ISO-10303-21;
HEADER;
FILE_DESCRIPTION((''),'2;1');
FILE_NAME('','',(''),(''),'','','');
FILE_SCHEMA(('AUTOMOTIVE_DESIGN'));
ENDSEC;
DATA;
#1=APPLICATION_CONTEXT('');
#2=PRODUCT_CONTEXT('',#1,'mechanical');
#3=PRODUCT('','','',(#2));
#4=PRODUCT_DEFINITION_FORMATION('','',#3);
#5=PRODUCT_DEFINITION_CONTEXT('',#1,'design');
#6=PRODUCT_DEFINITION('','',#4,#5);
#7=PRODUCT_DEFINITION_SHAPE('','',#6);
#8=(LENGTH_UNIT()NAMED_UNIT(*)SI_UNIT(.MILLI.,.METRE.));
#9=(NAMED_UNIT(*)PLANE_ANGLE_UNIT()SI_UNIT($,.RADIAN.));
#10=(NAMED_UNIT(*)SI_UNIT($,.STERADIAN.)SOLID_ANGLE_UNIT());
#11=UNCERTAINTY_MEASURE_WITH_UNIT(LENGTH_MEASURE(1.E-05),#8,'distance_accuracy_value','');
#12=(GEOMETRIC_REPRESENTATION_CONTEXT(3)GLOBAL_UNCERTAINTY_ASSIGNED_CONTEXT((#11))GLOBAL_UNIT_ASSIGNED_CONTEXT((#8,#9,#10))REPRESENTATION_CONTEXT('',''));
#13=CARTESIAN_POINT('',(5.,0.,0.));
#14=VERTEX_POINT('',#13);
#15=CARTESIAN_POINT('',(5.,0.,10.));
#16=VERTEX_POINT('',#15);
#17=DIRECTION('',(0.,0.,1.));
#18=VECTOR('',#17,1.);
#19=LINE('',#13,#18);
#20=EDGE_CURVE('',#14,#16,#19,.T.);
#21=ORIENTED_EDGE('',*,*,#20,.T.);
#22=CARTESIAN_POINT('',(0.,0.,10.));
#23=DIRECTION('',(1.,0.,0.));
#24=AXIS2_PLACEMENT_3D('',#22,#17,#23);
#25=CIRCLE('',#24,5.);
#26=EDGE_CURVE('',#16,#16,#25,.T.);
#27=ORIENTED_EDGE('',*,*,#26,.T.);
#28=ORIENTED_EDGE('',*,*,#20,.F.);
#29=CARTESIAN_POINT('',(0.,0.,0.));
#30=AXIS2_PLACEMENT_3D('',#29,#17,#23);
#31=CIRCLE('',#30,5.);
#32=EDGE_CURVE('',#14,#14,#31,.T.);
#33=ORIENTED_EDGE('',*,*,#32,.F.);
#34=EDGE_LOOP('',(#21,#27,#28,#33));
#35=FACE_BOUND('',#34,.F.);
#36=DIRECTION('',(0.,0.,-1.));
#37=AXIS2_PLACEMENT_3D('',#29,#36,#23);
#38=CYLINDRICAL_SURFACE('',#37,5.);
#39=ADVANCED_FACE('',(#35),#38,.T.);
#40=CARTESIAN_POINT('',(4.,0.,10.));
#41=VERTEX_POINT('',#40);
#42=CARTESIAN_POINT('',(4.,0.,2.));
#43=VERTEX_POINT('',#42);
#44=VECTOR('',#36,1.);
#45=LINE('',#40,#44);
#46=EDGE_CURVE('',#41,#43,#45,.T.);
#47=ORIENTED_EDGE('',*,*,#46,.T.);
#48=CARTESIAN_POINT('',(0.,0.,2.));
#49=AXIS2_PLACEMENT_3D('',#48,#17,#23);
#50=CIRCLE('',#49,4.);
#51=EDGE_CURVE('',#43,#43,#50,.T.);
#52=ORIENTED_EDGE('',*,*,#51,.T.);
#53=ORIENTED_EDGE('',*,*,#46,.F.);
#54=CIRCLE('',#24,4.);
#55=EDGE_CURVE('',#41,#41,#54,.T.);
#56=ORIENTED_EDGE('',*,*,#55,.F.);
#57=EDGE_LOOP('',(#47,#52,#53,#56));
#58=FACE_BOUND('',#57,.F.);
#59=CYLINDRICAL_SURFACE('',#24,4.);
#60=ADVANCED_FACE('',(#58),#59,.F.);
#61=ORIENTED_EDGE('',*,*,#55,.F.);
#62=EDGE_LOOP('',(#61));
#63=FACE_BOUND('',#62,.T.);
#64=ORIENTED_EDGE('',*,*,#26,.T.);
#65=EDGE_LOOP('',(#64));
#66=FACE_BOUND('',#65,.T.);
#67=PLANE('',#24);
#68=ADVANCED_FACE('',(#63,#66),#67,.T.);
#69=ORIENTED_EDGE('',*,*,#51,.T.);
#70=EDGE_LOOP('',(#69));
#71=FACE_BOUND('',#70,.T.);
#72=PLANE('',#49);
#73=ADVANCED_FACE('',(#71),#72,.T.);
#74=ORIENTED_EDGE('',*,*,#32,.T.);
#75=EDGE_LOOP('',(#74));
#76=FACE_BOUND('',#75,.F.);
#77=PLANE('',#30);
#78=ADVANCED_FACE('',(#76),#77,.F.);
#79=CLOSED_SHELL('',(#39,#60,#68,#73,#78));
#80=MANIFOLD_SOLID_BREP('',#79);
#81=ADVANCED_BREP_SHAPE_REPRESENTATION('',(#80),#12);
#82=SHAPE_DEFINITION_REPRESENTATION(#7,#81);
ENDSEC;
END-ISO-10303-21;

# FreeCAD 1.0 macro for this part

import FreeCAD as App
import Part
import Sketcher

V = App.Vector
Q = App.Units.Quantity

doc = App.newDocument("Part")
body = doc.addObject("PartDesign::Body", "Body")

sketch1 = doc.addObject("Sketcher::SketchObject", "Sketch")
body.addObject(sketch1)
sketch1.AttachmentSupport = (doc.XY_Plane, [""])
sketch1.MapMode = "FlatFace"
sketch1.addGeometry(Part.Circle(V(0, 0, 0), V(0, 0, 1), 5), False)
sketch1.addConstraint(Sketcher.Constraint("Coincident", 0, 3, -1, 1))
sketch1.addConstraint(Sketcher.Constraint("Diameter", 0, Q("10 mm")))
pad1 = doc.addObject("PartDesign::Pad", "Pad")
body.addObject(pad1)
pad1.Profile = sketch1
pad1.Length = 10

sketch2 = doc.addObject("Sketcher::SketchObject", "Sketch001")
body.addObject(sketch2)
sketch2.AttachmentSupport = (doc.XY_Plane, [""])
sketch2.MapMode = "FlatFace"
sketch2.AttachmentOffset = App.Placement(V(0, 0, 10), App.Rotation())
sketch2.addGeometry(Part.Circle(V(0, 0, 0), V(0, 0, 1), 4), False)
sketch2.addConstraint(Sketcher.Constraint("Coincident", 0, 3, -1, 1))
sketch2.addConstraint(Sketcher.Constraint("Diameter", 0, Q("8 mm")))
pocket1 = doc.addObject("PartDesign::Pocket", "Pocket")
body.addObject(pocket1)
pocket1.Profile = sketch2
pocket1.Length = 8

doc.recompute()
